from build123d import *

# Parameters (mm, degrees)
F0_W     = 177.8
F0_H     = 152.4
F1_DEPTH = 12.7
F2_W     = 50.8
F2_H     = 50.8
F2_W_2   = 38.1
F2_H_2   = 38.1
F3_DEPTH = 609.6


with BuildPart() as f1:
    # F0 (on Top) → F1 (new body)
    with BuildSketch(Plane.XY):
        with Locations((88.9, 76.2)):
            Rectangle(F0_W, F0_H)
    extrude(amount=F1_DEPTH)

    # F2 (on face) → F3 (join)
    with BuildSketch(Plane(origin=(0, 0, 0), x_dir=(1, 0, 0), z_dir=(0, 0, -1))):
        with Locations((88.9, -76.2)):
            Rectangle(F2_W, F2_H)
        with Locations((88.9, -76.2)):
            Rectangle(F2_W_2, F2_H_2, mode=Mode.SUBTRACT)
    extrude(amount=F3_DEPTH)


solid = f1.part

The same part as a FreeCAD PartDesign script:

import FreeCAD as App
import Part
import Sketcher
Q = App.Units.Quantity


def add_polygon(sketch, points):
    """Adds a closed chain of lines whose ends are joined by coincident constraints."""
    first, n = sketch.GeometryCount, len(points)
    for a, b in zip(points, points[1:] + points[:1]):
        sketch.addGeometry(Part.LineSegment(App.Vector(*a, 0), App.Vector(*b, 0)), False)
    for i in range(n):
        sketch.addConstraint(Sketcher.Constraint("Coincident", first + i, 2, first + (i + 1) % n, 1))

doc = App.newDocument("Part")
body = doc.addObject("PartDesign::Body", "Body")

# Sketch on XY plane
sketch1 = doc.addObject("Sketcher::SketchObject", "Sketch")
body.addObject(sketch1)
sketch1.AttachmentSupport = (doc.XY_Plane, [""])
sketch1.MapMode = "FlatFace"
add_polygon(sketch1, [(0, 152), (0, 0), (178, 0), (178, 152)])  # lines 0-3
sketch1.addConstraint([
    Sketcher.Constraint("Vertical", 0),
    Sketcher.Constraint("Horizontal", 1),
    Sketcher.Constraint("Vertical", 2),
    Sketcher.Constraint("Horizontal", 3),
    Sketcher.Constraint("Coincident", 0, 2, -1, 1),
    Sketcher.Constraint("DistanceX", 1, 1, 1, 2, Q("7 in")),
    Sketcher.Constraint("DistanceY", 0, 2, 0, 1, Q("6 in")),
])
pad1 = doc.addObject("PartDesign::Pad", "Pad")
body.addObject(pad1)
pad1.Profile = sketch1
pad1.Length = Q("0.5 in")

# Sketch on XY plane
sketch2 = doc.addObject("Sketcher::SketchObject", "Sketch001")
body.addObject(sketch2)
sketch2.AttachmentSupport = (doc.XY_Plane, [""])
sketch2.MapMode = "FlatFace"
add_polygon(sketch2, [(64, 51), (64, 102), (114, 102), (114, 51)])  # lines 0-3
add_polygon(sketch2, [(108, 95), (70, 95), (70, 57), (108, 57)])  # lines 4-7
sketch2.addConstraint([
    Sketcher.Constraint("Vertical", 0),
    Sketcher.Constraint("Horizontal", 1),
    Sketcher.Constraint("Vertical", 2),
    Sketcher.Constraint("Horizontal", 3),
    Sketcher.Constraint("Horizontal", 4),
    Sketcher.Constraint("Vertical", 5),
    Sketcher.Constraint("Horizontal", 6),
    Sketcher.Constraint("Vertical", 7),
    Sketcher.Constraint("Equal", 3, 0),
    Sketcher.Constraint("Equal", 6, 5),
    Sketcher.Constraint("DistanceX", 1, 1, 1, 2, Q("2 in")),
    Sketcher.Constraint("DistanceX", 4, 2, 4, 1, Q("1.5 in")),
    Sketcher.Constraint("DistanceY", -1, 1, 0, 2, Q("4 in")),
    Sketcher.Constraint("DistanceX", -1, 1, 0, 2, Q("2.5 in")),
    Sketcher.Constraint("DistanceX", -1, 1, 4, 2, Q("2.75 in")),
    Sketcher.Constraint("DistanceY", -1, 1, 4, 2, Q("3.75 in")),
])
pad2 = doc.addObject("PartDesign::Pad", "Pad001")
body.addObject(pad2)
pad2.Profile = sketch2
pad2.Length = Q("24 in")
pad2.Reversed = True

doc.recompute()
